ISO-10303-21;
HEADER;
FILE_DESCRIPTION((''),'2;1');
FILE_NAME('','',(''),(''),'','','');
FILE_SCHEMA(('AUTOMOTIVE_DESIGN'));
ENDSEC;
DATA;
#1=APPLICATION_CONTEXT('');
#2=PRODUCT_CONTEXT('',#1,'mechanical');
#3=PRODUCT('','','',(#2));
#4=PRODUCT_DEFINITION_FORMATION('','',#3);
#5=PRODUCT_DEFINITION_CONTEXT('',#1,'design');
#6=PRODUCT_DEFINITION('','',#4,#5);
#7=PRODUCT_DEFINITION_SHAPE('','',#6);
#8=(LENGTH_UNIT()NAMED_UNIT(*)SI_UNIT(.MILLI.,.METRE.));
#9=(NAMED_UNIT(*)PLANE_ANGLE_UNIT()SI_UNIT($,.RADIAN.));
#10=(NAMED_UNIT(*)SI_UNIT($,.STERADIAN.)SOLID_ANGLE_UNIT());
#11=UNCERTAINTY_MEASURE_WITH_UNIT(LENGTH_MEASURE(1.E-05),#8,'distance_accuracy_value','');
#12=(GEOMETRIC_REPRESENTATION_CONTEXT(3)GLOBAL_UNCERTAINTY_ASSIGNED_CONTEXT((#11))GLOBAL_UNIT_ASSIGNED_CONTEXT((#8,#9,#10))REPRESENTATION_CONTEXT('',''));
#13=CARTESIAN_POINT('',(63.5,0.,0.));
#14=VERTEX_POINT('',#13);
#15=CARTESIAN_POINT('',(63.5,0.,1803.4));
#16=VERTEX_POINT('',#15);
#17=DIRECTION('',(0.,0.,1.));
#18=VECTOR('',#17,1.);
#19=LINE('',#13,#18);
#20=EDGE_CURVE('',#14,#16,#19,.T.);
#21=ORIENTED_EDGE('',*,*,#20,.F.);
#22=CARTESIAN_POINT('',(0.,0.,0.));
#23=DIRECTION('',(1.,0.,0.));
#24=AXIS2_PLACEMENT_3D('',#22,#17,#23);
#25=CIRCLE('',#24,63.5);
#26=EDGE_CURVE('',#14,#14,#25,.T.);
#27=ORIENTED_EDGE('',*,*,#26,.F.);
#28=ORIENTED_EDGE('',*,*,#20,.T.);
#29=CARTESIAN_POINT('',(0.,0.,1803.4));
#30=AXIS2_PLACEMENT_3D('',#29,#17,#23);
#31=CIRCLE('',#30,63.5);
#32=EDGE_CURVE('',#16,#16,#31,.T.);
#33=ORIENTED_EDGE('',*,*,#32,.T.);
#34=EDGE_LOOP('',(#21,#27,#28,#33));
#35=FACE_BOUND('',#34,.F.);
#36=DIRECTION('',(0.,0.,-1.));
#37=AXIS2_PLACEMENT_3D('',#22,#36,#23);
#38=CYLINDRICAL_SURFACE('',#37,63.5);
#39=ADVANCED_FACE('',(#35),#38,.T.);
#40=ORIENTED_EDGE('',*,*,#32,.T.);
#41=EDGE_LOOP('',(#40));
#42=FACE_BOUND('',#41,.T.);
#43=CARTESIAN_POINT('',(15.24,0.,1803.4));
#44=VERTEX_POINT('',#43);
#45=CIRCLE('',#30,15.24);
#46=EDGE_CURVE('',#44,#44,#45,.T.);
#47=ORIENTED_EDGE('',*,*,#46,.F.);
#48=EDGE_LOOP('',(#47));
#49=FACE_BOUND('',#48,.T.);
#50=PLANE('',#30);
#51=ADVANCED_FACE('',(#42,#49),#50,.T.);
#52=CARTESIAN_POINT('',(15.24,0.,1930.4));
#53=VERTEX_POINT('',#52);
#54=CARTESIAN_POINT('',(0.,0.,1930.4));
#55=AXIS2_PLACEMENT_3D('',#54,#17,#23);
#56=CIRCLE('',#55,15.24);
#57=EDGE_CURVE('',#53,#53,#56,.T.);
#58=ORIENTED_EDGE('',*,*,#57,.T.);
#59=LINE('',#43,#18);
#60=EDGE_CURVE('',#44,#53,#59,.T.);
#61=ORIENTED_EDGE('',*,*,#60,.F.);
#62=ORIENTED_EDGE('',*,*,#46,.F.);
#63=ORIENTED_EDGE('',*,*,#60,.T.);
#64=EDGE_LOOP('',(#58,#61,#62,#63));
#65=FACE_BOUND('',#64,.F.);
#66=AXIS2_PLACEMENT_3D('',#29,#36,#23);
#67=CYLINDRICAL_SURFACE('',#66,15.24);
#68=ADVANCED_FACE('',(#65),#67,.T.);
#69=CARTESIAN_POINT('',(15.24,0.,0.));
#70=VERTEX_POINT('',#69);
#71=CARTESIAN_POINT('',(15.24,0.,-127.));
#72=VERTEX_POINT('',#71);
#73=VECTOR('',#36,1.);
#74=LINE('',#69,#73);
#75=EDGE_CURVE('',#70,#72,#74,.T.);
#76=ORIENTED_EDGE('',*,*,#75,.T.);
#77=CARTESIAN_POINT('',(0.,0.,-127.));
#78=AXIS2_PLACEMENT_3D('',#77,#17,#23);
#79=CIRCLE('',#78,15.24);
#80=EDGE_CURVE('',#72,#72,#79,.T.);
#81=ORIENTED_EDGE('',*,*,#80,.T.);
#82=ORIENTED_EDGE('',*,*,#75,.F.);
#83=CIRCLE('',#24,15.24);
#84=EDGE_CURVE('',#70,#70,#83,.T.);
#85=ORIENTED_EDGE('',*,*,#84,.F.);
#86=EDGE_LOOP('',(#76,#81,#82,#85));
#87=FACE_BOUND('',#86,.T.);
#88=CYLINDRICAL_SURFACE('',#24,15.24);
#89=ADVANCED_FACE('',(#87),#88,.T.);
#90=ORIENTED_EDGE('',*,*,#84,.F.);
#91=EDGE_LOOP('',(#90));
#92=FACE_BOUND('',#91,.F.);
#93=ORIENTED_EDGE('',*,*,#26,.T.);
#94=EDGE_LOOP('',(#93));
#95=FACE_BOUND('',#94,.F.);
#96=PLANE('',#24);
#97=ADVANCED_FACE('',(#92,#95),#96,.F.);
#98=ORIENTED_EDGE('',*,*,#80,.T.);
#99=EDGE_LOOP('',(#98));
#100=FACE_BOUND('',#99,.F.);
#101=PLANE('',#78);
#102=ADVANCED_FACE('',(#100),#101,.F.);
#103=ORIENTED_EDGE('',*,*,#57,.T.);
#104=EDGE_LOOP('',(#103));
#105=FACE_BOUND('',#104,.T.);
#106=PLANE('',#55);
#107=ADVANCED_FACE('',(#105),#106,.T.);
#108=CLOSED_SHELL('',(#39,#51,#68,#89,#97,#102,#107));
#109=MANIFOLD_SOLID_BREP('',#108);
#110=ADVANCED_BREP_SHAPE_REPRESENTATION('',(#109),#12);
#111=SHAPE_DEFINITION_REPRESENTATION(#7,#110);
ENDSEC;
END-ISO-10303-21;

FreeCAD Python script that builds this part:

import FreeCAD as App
import Part
import Sketcher
from FreeCAD import Vector
Q = App.Units.Quantity

doc = App.newDocument("Part")
body = doc.addObject("PartDesign::Body", "Body")

# Sketch on XY plane
sketch1 = body.newObject("Sketcher::SketchObject", "Sketch")
sketch1.AttachmentSupport = (doc.getObject("XY_Plane"), [""])
sketch1.MapMode = "FlatFace"
sketch1.addGeometry(Part.Circle(Vector(0, 0, 0), Vector(0, 0, 1), 63.5), False)
sketch1.addConstraint([
    Sketcher.Constraint("Coincident", 0, 3, -1, 1),
    Sketcher.Constraint("Diameter", 0, Q("5 in")),
])
pad1 = body.newObject("PartDesign::Pad", "Pad")
pad1.Profile = sketch1
pad1.Length = Q("71 in")

# Sketch on XY plane
sketch2 = body.newObject("Sketcher::SketchObject", "Sketch001")
sketch2.AttachmentSupport = (doc.getObject("XY_Plane"), [""])
sketch2.MapMode = "FlatFace"
sketch2.AttachmentOffset = App.Placement(Vector(0, 0, 71 * 25.4), App.Rotation())
sketch2.addGeometry(Part.Circle(Vector(0, 0, 0), Vector(0, 0, 1), 15.24), False)
sketch2.addConstraint([
    Sketcher.Constraint("Coincident", 0, 3, -1, 1),
    Sketcher.Constraint("Diameter", 0, Q("1.2 in")),
])
pad2 = body.newObject("PartDesign::Pad", "Pad001")
pad2.Profile = sketch2
pad2.Length = Q("5 in")

# Sketch on XY plane
sketch3 = body.newObject("Sketcher::SketchObject", "Sketch002")
sketch3.AttachmentSupport = (doc.getObject("XY_Plane"), [""])
sketch3.MapMode = "FlatFace"
sketch3.addGeometry(Part.Circle(Vector(0, 0, 0), Vector(0, 0, 1), 15.24), False)
sketch3.addConstraint([
    Sketcher.Constraint("Coincident", 0, 3, -1, 1),
    Sketcher.Constraint("Diameter", 0, Q("1.2 in")),
])
pad3 = body.newObject("PartDesign::Pad", "Pad002")
pad3.Profile = sketch3
pad3.Length = Q("5 in")
pad3.Reversed = True

doc.recompute()
